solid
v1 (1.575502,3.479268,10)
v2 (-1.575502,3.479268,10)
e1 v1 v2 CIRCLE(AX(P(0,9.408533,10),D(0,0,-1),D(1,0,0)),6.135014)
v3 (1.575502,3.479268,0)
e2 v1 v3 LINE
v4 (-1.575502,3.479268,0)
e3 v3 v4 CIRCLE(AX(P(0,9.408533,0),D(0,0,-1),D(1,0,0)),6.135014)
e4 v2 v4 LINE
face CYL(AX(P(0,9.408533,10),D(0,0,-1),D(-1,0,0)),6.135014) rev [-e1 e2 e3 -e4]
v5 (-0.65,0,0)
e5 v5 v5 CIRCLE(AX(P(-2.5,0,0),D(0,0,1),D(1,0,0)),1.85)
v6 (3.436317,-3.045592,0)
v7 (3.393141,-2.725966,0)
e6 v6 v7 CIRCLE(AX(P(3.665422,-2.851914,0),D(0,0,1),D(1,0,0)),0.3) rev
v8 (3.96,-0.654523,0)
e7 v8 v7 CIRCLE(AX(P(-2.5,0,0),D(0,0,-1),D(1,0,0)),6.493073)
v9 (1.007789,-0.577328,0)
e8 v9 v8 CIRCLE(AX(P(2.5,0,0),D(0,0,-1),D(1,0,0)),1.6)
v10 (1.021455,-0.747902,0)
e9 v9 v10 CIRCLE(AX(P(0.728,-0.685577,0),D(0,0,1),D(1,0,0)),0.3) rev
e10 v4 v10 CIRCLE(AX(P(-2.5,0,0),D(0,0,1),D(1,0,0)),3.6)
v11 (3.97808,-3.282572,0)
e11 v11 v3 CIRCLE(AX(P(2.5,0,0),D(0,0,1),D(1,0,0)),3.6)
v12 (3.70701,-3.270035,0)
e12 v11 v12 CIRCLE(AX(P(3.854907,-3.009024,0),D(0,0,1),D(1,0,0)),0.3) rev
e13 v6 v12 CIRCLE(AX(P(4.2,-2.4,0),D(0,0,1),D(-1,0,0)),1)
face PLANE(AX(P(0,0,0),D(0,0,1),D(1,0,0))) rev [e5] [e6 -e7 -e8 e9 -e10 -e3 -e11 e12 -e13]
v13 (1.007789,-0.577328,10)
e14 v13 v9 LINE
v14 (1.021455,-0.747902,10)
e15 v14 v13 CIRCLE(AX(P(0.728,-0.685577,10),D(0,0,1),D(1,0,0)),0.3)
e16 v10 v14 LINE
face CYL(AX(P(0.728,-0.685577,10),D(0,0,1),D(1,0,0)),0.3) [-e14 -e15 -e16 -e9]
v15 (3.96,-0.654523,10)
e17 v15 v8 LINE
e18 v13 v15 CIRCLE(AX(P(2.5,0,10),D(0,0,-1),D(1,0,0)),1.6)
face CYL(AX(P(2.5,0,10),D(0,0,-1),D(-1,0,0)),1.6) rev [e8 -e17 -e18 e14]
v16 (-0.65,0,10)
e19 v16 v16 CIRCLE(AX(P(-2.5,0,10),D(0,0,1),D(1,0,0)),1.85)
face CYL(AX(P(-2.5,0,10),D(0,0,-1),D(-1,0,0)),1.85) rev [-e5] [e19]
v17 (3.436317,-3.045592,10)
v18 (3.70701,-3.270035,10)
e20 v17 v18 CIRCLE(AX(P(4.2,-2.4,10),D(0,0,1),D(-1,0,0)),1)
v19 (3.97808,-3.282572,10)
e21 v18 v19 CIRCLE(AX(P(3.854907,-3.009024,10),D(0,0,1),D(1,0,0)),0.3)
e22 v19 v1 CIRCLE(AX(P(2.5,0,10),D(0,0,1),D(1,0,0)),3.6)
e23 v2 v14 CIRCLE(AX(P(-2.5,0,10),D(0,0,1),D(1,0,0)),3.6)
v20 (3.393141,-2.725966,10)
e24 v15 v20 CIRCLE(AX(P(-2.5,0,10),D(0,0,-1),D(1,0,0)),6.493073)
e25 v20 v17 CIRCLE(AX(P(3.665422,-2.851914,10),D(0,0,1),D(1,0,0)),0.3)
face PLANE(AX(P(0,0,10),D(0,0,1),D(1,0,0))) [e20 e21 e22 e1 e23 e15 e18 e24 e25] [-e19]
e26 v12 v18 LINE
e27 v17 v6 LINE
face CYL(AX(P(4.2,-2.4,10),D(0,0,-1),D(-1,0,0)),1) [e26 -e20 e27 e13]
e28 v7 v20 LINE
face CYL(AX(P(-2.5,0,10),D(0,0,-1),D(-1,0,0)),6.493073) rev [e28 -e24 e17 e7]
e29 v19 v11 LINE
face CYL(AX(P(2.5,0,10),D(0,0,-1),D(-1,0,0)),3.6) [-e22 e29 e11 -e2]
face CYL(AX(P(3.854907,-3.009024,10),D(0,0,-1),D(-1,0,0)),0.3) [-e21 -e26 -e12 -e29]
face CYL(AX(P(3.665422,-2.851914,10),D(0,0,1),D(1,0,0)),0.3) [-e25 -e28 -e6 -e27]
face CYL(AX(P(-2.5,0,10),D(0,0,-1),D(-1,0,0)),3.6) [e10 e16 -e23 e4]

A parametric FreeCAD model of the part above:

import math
import FreeCAD as App
import Part
import Sketcher
Q = App.Units.Quantity


def edges_at(feature, points):
    """Names of the edges that pass closest to the given points."""
    edges = feature.Shape.Edges
    near = lambda p: min(range(len(edges)), key=lambda i: edges[i].distToShape(Part.Vertex(*p))[0])
    return sorted({f"Edge{near(p) + 1}" for p in points})

doc = App.newDocument("Part")
body = doc.addObject("PartDesign::Body", "Body")

sketch1 = body.newObject("Sketcher::SketchObject", "Sketch")
sketch1.AttachmentSupport = (doc.getObject("XY_Plane"), [""])
sketch1.MapMode = "FlatFace"
sketch1.addGeometry([
    Part.ArcOfCircle(Part.Circle(App.Vector(0, 9.4, 0), App.Vector(0, 0, 1), 6.1), math.radians(-105), math.radians(-75)),
    Part.ArcOfCircle(Part.Circle(App.Vector(-2.5, 0, 0), App.Vector(0, 0, 1), 3.6), math.radians(75), math.radians(350)),
    Part.ArcOfCircle(Part.Circle(App.Vector(2.5, 0, 0), App.Vector(0, 0, 1), 1.6), math.radians(-24), math.radians(204)),
    Part.ArcOfCircle(Part.Circle(App.Vector(-2.5, 0, 0), App.Vector(0, 0, 1), 6.5), math.radians(-26), math.radians(-6)),
    Part.ArcOfCircle(Part.Circle(App.Vector(4.2, -2.4, 0), App.Vector(0, 0, 1), 1), math.radians(-152), math.radians(-110)),
    Part.ArcOfCircle(Part.Circle(App.Vector(2.5, 0, 0), App.Vector(0, 0, 1), 3.6), math.radians(-68), math.radians(105)),
    Part.Circle(App.Vector(-2.5, 0, 0), App.Vector(0, 0, 1), 1.9),
], False)
sketch1.addConstraint([
    Sketcher.Constraint("Tangent", 0, 1, 1, 1),
    Sketcher.Constraint("Coincident", 1, 2, 2, 2),
    Sketcher.Constraint("Coincident", 2, 1, 3, 2),
    Sketcher.Constraint("Coincident", 3, 1, 4, 1),
    Sketcher.Constraint("Coincident", 4, 2, 5, 1),
    Sketcher.Constraint("Tangent", 5, 2, 0, 2),
    Sketcher.Constraint("Coincident", 3, 3, 1, 3),
    Sketcher.Constraint("Coincident", 5, 3, 2, 3),
    Sketcher.Constraint("Coincident", 6, 3, 1, 3),
    Sketcher.Constraint("Equal", 1, 5),
    Sketcher.Constraint("Symmetric", 1, 3, 2, 3, -1, 1),
    Sketcher.Constraint("PointOnObject", 0, 3, -2),
    Sketcher.Constraint("Horizontal", 1, 2, 2, 1),
    Sketcher.Constraint("Radius", 4, Q("1 mm")),
    Sketcher.Constraint("Diameter", 6, Q("3.7 mm")),
    Sketcher.Constraint("Radius", 1, Q("3.6 mm")),
    Sketcher.Constraint("Radius", 2, Q("1.6 mm")),
    Sketcher.Constraint("DistanceX", 1, 3, 2, 3, Q("5 mm")),
    Sketcher.Constraint("DistanceX", -1, 1, 4, 3, Q("4.2 mm")),
    Sketcher.Constraint("DistanceY", 4, 3, -1, 1, Q("2.4 mm")),
    Sketcher.Constraint("Radius", 0, Q("6.135014 mm")),
])
pad1 = body.newObject("PartDesign::Pad", "Pad")
pad1.Profile = sketch1
pad1.Length = 10
doc.recompute()

fillet = body.newObject("PartDesign::Fillet", "Fillet")
fillet.Base = (pad1, edges_at(pad1, [(1.04, -0.655, 5), (3.851, -3.337, 5), (3.321, -2.877, 5)]))
fillet.Radius = 0.3

doc.recompute()
